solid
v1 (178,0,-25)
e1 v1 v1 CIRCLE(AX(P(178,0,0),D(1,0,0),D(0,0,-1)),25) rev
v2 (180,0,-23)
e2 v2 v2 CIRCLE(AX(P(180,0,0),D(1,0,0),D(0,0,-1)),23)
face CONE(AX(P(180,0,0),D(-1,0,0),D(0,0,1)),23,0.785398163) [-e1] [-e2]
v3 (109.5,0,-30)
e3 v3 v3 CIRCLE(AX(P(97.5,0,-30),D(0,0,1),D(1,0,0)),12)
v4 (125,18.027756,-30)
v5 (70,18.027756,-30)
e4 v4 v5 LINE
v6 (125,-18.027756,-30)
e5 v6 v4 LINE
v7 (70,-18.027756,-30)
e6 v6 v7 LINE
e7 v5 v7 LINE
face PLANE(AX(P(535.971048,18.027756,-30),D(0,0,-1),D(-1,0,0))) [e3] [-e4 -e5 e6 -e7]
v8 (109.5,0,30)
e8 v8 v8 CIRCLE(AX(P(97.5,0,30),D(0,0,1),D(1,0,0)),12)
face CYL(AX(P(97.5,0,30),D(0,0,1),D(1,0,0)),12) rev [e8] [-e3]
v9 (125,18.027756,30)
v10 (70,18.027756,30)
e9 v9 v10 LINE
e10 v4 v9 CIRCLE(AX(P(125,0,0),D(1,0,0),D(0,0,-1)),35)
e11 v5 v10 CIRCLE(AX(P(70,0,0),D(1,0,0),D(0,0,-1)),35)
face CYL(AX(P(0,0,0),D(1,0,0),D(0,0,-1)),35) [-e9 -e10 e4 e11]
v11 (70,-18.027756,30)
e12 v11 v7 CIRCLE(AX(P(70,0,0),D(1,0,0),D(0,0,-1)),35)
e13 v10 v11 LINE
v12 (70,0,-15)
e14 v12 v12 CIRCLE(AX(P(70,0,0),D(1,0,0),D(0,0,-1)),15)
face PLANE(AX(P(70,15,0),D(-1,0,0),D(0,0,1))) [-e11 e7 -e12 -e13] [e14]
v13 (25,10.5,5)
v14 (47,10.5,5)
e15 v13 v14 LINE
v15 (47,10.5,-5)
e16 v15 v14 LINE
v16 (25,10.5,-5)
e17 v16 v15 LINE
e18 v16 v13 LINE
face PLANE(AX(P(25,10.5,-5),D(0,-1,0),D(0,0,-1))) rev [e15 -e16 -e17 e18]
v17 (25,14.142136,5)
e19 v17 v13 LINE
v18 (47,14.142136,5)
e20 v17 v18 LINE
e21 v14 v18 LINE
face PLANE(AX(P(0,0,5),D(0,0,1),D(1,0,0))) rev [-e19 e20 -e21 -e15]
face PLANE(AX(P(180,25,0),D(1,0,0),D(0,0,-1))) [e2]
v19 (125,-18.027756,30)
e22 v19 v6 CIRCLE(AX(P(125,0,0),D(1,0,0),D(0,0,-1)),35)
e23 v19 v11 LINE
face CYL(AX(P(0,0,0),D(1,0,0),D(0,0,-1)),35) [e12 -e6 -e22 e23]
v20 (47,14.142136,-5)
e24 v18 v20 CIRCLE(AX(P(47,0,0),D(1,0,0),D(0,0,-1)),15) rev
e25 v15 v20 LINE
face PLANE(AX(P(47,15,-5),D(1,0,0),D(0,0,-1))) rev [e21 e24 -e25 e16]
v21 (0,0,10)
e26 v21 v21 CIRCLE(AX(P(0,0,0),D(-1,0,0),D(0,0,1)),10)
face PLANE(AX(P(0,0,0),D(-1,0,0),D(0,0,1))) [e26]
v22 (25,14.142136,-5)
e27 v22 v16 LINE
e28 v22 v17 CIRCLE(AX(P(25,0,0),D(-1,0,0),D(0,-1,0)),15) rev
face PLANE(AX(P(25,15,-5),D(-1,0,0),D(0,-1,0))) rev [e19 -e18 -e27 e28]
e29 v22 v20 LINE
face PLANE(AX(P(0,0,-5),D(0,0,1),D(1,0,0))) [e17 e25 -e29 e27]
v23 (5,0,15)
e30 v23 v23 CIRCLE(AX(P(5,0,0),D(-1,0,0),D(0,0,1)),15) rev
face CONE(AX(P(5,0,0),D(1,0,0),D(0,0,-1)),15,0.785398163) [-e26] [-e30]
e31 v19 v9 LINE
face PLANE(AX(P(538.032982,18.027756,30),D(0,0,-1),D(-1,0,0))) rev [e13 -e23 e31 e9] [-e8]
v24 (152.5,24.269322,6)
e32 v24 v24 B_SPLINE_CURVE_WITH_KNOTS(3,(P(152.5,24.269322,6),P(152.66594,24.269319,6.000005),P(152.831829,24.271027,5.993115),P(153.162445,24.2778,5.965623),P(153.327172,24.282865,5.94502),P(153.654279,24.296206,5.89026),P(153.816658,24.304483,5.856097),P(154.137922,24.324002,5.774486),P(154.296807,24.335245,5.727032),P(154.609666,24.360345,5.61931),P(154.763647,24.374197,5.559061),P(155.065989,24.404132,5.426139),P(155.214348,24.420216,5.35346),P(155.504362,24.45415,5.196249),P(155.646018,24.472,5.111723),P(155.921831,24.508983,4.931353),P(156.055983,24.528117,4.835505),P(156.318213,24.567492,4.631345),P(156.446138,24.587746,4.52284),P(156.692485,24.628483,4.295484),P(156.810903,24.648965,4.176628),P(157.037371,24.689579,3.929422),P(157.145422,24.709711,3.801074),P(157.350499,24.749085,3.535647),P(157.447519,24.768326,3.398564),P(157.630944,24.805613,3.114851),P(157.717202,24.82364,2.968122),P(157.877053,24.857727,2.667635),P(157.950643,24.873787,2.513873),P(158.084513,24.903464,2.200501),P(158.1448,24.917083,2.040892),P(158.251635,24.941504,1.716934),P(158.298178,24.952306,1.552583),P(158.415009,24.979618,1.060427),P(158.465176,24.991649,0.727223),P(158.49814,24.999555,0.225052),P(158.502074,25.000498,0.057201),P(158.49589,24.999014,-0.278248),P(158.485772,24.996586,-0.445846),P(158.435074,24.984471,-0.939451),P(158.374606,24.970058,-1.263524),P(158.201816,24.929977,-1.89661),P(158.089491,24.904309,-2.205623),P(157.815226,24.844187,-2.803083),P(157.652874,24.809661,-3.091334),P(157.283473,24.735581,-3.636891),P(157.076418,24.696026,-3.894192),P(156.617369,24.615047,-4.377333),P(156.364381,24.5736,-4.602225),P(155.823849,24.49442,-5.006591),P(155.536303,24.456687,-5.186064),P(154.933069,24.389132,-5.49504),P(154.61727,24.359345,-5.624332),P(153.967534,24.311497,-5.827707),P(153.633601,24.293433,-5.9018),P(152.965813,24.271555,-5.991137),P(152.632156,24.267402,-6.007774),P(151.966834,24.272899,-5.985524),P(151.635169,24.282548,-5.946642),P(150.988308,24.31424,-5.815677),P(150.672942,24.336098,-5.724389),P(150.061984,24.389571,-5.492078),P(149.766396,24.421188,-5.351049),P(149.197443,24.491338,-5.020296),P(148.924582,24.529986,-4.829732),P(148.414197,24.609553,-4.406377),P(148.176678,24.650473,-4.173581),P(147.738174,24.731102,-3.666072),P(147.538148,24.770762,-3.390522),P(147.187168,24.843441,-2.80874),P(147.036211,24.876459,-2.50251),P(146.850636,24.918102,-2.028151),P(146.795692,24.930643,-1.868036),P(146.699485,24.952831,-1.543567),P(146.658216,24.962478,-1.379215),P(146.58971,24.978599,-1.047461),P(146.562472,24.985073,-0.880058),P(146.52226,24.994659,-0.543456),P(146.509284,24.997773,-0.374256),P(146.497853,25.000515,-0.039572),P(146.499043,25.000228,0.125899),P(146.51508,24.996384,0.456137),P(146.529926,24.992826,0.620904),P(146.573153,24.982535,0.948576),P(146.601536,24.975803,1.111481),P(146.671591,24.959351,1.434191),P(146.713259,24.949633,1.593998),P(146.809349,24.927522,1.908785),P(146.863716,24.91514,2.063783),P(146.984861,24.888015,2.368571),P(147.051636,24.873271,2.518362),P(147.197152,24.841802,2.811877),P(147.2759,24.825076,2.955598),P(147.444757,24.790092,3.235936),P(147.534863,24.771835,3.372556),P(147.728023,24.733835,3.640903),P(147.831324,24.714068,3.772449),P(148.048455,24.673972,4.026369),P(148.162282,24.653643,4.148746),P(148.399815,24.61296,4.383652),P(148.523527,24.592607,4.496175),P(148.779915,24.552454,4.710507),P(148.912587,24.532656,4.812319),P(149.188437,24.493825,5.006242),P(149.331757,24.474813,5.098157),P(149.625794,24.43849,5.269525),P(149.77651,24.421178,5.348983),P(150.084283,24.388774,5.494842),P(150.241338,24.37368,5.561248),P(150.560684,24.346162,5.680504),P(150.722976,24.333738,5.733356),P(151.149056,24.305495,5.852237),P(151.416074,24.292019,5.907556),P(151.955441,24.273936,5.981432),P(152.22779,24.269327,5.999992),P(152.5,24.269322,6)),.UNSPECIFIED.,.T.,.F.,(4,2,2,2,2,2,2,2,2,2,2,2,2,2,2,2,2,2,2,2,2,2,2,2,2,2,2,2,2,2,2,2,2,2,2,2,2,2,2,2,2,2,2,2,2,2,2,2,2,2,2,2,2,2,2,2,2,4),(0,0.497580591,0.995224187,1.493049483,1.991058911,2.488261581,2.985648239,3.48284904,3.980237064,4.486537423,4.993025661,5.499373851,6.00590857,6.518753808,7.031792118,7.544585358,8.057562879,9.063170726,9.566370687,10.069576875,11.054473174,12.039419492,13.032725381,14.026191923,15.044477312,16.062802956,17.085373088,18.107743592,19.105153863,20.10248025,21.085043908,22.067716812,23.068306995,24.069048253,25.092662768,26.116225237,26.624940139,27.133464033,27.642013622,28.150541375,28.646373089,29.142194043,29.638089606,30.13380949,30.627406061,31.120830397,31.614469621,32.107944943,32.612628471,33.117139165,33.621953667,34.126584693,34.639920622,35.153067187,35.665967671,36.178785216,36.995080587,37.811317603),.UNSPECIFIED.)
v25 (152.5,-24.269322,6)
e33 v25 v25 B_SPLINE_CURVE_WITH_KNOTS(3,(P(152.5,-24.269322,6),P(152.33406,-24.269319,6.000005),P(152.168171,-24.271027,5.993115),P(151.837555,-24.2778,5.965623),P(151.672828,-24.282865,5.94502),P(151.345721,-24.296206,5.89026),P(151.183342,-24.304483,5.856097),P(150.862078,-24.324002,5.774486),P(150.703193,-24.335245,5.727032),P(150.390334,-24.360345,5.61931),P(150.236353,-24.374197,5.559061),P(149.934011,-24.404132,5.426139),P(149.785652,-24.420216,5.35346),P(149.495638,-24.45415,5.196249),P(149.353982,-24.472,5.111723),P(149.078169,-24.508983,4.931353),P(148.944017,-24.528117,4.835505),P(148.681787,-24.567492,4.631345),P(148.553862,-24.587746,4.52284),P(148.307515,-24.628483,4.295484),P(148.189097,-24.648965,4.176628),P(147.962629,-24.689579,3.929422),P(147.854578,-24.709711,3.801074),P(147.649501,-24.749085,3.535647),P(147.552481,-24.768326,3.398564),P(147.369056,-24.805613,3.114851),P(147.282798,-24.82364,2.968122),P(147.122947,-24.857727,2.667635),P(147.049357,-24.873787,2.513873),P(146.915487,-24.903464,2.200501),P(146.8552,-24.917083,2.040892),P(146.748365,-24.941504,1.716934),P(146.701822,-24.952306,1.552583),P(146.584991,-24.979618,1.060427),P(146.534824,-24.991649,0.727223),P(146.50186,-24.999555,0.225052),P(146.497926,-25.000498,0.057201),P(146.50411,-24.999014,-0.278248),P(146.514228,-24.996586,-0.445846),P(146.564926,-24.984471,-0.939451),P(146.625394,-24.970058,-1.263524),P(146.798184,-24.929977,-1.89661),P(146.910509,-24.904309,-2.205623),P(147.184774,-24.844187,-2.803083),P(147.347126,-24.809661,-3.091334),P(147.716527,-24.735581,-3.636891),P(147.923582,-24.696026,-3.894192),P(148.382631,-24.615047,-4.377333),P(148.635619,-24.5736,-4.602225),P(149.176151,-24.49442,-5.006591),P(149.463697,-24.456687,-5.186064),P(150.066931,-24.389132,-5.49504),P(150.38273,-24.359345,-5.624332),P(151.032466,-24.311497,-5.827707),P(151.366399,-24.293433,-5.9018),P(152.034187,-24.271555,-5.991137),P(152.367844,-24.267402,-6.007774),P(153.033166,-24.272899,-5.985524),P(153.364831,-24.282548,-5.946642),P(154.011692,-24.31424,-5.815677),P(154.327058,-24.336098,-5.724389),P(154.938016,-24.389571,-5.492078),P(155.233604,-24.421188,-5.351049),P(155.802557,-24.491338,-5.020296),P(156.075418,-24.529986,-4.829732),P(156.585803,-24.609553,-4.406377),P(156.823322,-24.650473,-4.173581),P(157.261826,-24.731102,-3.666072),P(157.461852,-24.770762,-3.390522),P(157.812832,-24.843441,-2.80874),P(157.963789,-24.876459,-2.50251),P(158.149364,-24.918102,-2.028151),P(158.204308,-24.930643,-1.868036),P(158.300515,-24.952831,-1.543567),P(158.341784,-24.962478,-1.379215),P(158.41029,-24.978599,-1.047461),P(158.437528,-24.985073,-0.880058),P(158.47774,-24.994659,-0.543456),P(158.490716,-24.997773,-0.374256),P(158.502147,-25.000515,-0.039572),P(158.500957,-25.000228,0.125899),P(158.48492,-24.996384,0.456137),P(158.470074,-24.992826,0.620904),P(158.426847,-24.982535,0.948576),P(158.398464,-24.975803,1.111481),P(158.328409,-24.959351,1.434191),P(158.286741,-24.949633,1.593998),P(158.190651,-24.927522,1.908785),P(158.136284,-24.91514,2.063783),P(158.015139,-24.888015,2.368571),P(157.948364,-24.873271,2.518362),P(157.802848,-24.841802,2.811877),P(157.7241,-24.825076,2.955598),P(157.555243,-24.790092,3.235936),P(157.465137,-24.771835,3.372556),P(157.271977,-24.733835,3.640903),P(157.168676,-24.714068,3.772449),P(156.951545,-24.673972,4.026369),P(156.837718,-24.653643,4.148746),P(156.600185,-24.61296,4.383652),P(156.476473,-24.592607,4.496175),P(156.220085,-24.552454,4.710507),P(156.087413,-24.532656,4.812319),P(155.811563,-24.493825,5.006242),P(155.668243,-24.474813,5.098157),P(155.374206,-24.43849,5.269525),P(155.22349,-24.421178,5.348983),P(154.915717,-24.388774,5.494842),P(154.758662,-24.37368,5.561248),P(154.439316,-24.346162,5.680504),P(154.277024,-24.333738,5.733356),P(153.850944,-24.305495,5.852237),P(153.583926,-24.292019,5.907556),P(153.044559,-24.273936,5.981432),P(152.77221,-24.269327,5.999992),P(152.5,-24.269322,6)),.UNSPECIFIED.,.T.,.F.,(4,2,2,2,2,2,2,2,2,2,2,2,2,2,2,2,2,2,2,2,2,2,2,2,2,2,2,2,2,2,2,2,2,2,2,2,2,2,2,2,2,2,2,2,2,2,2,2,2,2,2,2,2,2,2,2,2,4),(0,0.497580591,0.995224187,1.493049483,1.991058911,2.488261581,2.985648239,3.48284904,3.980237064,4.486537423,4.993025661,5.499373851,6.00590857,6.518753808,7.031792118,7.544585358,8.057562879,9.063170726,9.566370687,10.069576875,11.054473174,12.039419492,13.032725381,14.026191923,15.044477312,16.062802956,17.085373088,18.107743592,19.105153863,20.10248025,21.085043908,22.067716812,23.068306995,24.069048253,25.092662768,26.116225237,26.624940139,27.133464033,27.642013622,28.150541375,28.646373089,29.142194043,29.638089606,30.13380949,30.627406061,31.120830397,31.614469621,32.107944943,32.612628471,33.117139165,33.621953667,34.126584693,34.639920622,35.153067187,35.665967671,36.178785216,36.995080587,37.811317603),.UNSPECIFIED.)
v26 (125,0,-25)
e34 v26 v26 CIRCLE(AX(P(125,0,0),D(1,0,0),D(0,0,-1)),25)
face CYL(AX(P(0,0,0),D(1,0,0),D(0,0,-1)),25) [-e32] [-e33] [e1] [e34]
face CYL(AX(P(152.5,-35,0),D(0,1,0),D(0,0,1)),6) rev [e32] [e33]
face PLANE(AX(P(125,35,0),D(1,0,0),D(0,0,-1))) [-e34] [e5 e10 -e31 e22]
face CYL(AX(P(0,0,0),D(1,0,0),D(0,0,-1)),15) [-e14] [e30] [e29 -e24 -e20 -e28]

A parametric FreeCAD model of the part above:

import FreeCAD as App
import Part
import Sketcher
from FreeCAD import Vector


def edges_at(feature, points):
    """Names of the edges that pass closest to the given points."""
    edges = feature.Shape.Edges
    near = lambda p: min(range(len(edges)), key=lambda i: edges[i].distToShape(Part.Vertex(*p))[0])
    return sorted({f"Edge{near(p) + 1}" for p in points})

doc = App.newDocument("Part")
body = doc.addObject("PartDesign::Body", "Body")

sketch1 = doc.addObject("Sketcher::SketchObject", "Sketch")
body.addObject(sketch1)
sketch1.AttachmentSupport = (doc.XY_Plane, [""])
sketch1.MapMode = "FlatFace"
sketch1.addGeometry(Part.LineSegment(Vector(0, 15, 0), Vector(0, 0, 0)), False)
sketch1.addGeometry(Part.LineSegment(Vector(0, 0, 0), Vector(180, 0, 0)), False)
sketch1.addGeometry(Part.LineSegment(Vector(180, 0, 0), Vector(180, 25, 0)), False)
sketch1.addGeometry(Part.LineSegment(Vector(180, 25, 0), Vector(125, 25, 0)), False)
sketch1.addGeometry(Part.LineSegment(Vector(125, 25, 0), Vector(125, 35, 0)), False)
sketch1.addGeometry(Part.LineSegment(Vector(125, 35, 0), Vector(70, 35, 0)), False)
sketch1.addGeometry(Part.LineSegment(Vector(70, 35, 0), Vector(70, 15, 0)), False)
sketch1.addGeometry(Part.LineSegment(Vector(70, 15, 0), Vector(0, 15, 0)), False)
sketch1.addConstraint(Sketcher.Constraint("Coincident", 0, 2, 1, 1))
sketch1.addConstraint(Sketcher.Constraint("Coincident", 1, 2, 2, 1))
sketch1.addConstraint(Sketcher.Constraint("Coincident", 2, 2, 3, 1))
sketch1.addConstraint(Sketcher.Constraint("Coincident", 3, 2, 4, 1))
sketch1.addConstraint(Sketcher.Constraint("Coincident", 4, 2, 5, 1))
sketch1.addConstraint(Sketcher.Constraint("Coincident", 5, 2, 6, 1))
sketch1.addConstraint(Sketcher.Constraint("Coincident", 6, 2, 7, 1))
sketch1.addConstraint(Sketcher.Constraint("Coincident", 7, 2, 0, 1))
sketch1.addConstraint(Sketcher.Constraint("Vertical", 0))
sketch1.addConstraint(Sketcher.Constraint("Horizontal", 1))
sketch1.addConstraint(Sketcher.Constraint("Vertical", 2))
sketch1.addConstraint(Sketcher.Constraint("Horizontal", 3))
sketch1.addConstraint(Sketcher.Constraint("Vertical", 4))
sketch1.addConstraint(Sketcher.Constraint("Horizontal", 5))
sketch1.addConstraint(Sketcher.Constraint("Vertical", 6))
sketch1.addConstraint(Sketcher.Constraint("Horizontal", 7))
sketch1.addConstraint(Sketcher.Constraint("Coincident", 0, 2, -1, 1))
sketch1.addConstraint(Sketcher.Constraint("Equal", 3, 5))
sketch1.addConstraint(Sketcher.Constraint("DistanceX", 1, 1, 1, 2, 180.0))
sketch1.addConstraint(Sketcher.Constraint("DistanceX", 3, 2, 3, 1, 55.0))
sketch1.addConstraint(Sketcher.Constraint("DistanceY", 0, 2, 0, 1, 15.0))
sketch1.addConstraint(Sketcher.Constraint("DistanceY", 2, 1, 2, 2, 25.0))
sketch1.addConstraint(Sketcher.Constraint("DistanceY", 4, 1, 4, 2, 10.0))
revolution = doc.addObject("PartDesign::Revolution", "Revolution")
body.addObject(revolution)
revolution.Profile = sketch1
revolution.ReferenceAxis = (sketch1, ["H_Axis"])
revolution.Angle = 360

sketch2 = doc.addObject("Sketcher::SketchObject", "Sketch001")
body.addObject(sketch2)
sketch2.AttachmentSupport = (doc.YZ_Plane, [""])
sketch2.MapMode = "FlatFace"
sketch2.AttachmentOffset = App.Placement(Vector(0, 0, 125), App.Rotation())
sketch2.addGeometry(Part.LineSegment(Vector(-196, 30, 0), Vector(196, 30, 0)), False)
sketch2.addGeometry(Part.LineSegment(Vector(196, 30, 0), Vector(196, 386, 0)), False)
sketch2.addGeometry(Part.LineSegment(Vector(196, 386, 0), Vector(-196, 386, 0)), False)
sketch2.addGeometry(Part.LineSegment(Vector(-196, 386, 0), Vector(-196, 30, 0)), False)
sketch2.addConstraint(Sketcher.Constraint("Coincident", 0, 2, 1, 1))
sketch2.addConstraint(Sketcher.Constraint("Coincident", 1, 2, 2, 1))
sketch2.addConstraint(Sketcher.Constraint("Coincident", 2, 2, 3, 1))
sketch2.addConstraint(Sketcher.Constraint("Coincident", 3, 2, 0, 1))
sketch2.addConstraint(Sketcher.Constraint("Horizontal", 0))
sketch2.addConstraint(Sketcher.Constraint("Vertical", 1))
sketch2.addConstraint(Sketcher.Constraint("Horizontal", 2))
sketch2.addConstraint(Sketcher.Constraint("Vertical", 3))
sketch2.addConstraint(Sketcher.Constraint("DistanceY", -1, 1, 0, 2, 30.0))
sketch2.addConstraint(Sketcher.Constraint("DistanceX", 0, 1, 0, 2, 391.601467))
sketch2.addConstraint(Sketcher.Constraint("DistanceY", 1, 1, 1, 2, 355.545954))
sketch2.addConstraint(Sketcher.Constraint("DistanceX", -1, 1, 0, 2, 195.800733))
pocket1 = doc.addObject("PartDesign::Pocket", "Pocket")
body.addObject(pocket1)
pocket1.Profile = sketch2
pocket1.Length = 270.886593
pocket1.Midplane = True
doc.recompute()

mirrored = doc.addObject("PartDesign::Mirrored", "Mirrored")
body.addObject(mirrored)
mirrored.Originals = [pocket1]
mirrored.MirrorPlane = (doc.XY_Plane, [""])
body.Tip = mirrored

sketch3 = doc.addObject("Sketcher::SketchObject", "Sketch002")
body.addObject(sketch3)
sketch3.AttachmentSupport = (doc.XY_Plane, [""])
sketch3.MapMode = "FlatFace"
sketch3.addGeometry(Part.LineSegment(Vector(25, 15, 0), Vector(25, 10.5, 0)), False)
sketch3.addGeometry(Part.LineSegment(Vector(25, 10.5, 0), Vector(47, 10.5, 0)), False)
sketch3.addGeometry(Part.LineSegment(Vector(47, 10.5, 0), Vector(47, 15, 0)), False)
sketch3.addGeometry(Part.LineSegment(Vector(47, 15, 0), Vector(25, 15, 0)), False)
sketch3.addConstraint(Sketcher.Constraint("Coincident", 0, 2, 1, 1))
sketch3.addConstraint(Sketcher.Constraint("Coincident", 1, 2, 2, 1))
sketch3.addConstraint(Sketcher.Constraint("Coincident", 2, 2, 3, 1))
sketch3.addConstraint(Sketcher.Constraint("Coincident", 3, 2, 0, 1))
sketch3.addConstraint(Sketcher.Constraint("Vertical", 0))
sketch3.addConstraint(Sketcher.Constraint("Horizontal", 1))
sketch3.addConstraint(Sketcher.Constraint("Vertical", 2))
sketch3.addConstraint(Sketcher.Constraint("Horizontal", 3))
sketch3.addConstraint(Sketcher.Constraint("DistanceX", 1, 1, 1, 2, 22.0))
sketch3.addConstraint(Sketcher.Constraint("DistanceY", 0, 2, 0, 1, 4.5))
sketch3.addConstraint(Sketcher.Constraint("DistanceX", -1, 1, 0, 2, 25.0))
sketch3.addConstraint(Sketcher.Constraint("DistanceY", -1, 1, 2, 2, 15.0))
pocket2 = doc.addObject("PartDesign::Pocket", "Pocket001")
body.addObject(pocket2)
pocket2.Profile = sketch3
pocket2.Length = 10
pocket2.Midplane = True

sketch4 = doc.addObject("Sketcher::SketchObject", "Sketch003")
body.addObject(sketch4)
sketch4.AttachmentSupport = (doc.XY_Plane, [""])
sketch4.MapMode = "FlatFace"
sketch4.AttachmentOffset = App.Placement(Vector(0, 0, 30), App.Rotation())
sketch4.addGeometry(Part.Circle(Vector(98, 0, 0), Vector(0, 0, 1), 12), False)
sketch4.addConstraint(Sketcher.Constraint("PointOnObject", 0, 3, -1))
sketch4.addConstraint(Sketcher.Constraint("Diameter", 0, 24.0))
sketch4.addConstraint(Sketcher.Constraint("DistanceX", -1, 1, 0, 3, 97.5))
doc.recompute()
hole = doc.addObject("PartDesign::Hole", "Hole")
body.addObject(hole)
hole.Profile = sketch4
hole.ThreadType = "None"
hole.Diameter = 24
hole.DepthType = "ThroughAll"

sketch5 = doc.addObject("Sketcher::SketchObject", "Sketch004")
body.addObject(sketch5)
sketch5.AttachmentSupport = (doc.XZ_Plane, [""])
sketch5.MapMode = "FlatFace"
sketch5.addGeometry(Part.Circle(Vector(152, 0, 0), Vector(0, 0, 1), 6), False)
sketch5.addConstraint(Sketcher.Constraint("PointOnObject", 0, 3, -1))
sketch5.addConstraint(Sketcher.Constraint("Diameter", 0, 12.0))
sketch5.addConstraint(Sketcher.Constraint("DistanceX", -1, 1, 0, 3, 152.5))
pocket3 = doc.addObject("PartDesign::Pocket", "Pocket002")
body.addObject(pocket3)
pocket3.Profile = sketch5
pocket3.Type = "ThroughAll"
pocket3.Midplane = True
doc.recompute()

chamfer = doc.addObject("PartDesign::Chamfer", "Chamfer")
body.addObject(chamfer)
chamfer.Base = (pocket3, edges_at(pocket3, [(180, 0, 25)]))
chamfer.Size = 2
doc.recompute()

chamfer2 = doc.addObject("PartDesign::Chamfer", "Chamfer001")
body.addObject(chamfer2)
chamfer2.Base = (chamfer, edges_at(chamfer, [(0, 0, 15)]))
chamfer2.Size = 5

doc.recompute()
